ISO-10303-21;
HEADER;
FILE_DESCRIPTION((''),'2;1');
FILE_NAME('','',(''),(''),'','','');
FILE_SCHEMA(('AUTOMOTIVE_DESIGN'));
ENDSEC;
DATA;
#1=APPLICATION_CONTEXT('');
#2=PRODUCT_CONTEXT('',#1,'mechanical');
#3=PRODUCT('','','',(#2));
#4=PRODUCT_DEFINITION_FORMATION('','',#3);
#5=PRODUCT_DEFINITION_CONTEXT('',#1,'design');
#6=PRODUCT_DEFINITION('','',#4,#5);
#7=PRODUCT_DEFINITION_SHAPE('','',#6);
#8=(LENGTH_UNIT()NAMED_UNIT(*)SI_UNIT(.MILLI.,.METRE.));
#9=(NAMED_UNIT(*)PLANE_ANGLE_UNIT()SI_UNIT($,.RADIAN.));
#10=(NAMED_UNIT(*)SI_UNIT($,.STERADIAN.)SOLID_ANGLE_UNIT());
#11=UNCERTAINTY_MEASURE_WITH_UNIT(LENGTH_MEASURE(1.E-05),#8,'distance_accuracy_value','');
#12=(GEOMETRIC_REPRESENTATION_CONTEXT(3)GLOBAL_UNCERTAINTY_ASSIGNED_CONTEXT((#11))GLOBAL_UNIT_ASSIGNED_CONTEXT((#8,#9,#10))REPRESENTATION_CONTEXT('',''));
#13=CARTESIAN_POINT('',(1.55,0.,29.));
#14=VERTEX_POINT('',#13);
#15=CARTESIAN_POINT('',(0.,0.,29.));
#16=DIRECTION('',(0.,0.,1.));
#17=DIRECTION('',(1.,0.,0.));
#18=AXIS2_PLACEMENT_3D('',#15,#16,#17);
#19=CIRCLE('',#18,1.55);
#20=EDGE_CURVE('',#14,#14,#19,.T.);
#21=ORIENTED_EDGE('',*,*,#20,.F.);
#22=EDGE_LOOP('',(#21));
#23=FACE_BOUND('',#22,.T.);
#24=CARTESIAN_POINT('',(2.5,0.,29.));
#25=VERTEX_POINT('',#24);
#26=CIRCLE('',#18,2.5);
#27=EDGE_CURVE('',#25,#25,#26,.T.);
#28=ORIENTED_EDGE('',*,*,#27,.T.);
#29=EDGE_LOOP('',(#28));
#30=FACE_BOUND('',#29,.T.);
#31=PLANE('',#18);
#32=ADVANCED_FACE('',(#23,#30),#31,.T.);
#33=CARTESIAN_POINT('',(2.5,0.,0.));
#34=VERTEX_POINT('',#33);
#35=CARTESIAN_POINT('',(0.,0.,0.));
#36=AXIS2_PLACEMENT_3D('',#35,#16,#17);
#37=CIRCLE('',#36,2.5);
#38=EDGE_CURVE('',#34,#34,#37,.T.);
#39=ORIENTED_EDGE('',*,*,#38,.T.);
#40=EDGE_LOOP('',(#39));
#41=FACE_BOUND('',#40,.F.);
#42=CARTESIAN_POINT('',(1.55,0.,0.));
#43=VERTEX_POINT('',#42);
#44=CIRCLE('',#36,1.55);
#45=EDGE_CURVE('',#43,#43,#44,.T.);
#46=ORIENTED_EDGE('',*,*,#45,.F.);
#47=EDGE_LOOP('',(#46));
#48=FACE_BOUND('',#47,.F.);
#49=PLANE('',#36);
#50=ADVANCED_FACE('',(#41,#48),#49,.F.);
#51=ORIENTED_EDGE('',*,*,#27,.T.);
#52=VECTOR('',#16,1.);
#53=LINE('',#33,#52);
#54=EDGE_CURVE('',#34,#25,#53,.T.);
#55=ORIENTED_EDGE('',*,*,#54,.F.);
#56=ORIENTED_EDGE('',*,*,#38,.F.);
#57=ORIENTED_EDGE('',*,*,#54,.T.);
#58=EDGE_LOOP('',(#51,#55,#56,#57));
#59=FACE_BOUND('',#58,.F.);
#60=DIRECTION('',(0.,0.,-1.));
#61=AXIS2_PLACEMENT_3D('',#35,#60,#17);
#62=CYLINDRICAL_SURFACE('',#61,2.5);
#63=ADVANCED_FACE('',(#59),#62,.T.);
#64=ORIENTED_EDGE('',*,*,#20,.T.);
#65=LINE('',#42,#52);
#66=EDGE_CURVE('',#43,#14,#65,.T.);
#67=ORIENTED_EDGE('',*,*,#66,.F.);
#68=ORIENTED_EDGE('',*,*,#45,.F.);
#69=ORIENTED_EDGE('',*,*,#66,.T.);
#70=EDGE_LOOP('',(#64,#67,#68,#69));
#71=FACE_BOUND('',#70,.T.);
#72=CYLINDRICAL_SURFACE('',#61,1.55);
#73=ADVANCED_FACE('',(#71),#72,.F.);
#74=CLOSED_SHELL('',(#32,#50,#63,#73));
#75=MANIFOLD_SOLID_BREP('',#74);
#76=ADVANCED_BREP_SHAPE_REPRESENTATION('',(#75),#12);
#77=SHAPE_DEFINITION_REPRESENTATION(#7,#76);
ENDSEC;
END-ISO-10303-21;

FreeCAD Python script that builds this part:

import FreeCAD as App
import Part
import Sketcher
from FreeCAD import Vector

doc = App.newDocument("Part")
body = doc.addObject("PartDesign::Body", "Body")

# Sketch on XY plane
sketch1 = body.newObject("Sketcher::SketchObject", "Sketch")
sketch1.AttachmentSupport = (doc.getObject("XY_Plane"), [""])
sketch1.MapMode = "FlatFace"
sketch1.addGeometry([
    Part.Circle(Vector(0, 0, 0), Vector(0, 0, 1), 2.5),
    Part.Circle(Vector(0, 0, 0), Vector(0, 0, 1), 1.6),
], False)
sketch1.addConstraint([
    Sketcher.Constraint("Coincident", 0, 3, -1, 1),
    Sketcher.Constraint("Coincident", 1, 3, -1, 1),
    Sketcher.Constraint("Diameter", 0, 5.0),
    Sketcher.Constraint("Diameter", 1, 3.1),
])
pad1 = body.newObject("PartDesign::Pad", "Pad")
pad1.Profile = sketch1
pad1.Length = 29

doc.recompute()
